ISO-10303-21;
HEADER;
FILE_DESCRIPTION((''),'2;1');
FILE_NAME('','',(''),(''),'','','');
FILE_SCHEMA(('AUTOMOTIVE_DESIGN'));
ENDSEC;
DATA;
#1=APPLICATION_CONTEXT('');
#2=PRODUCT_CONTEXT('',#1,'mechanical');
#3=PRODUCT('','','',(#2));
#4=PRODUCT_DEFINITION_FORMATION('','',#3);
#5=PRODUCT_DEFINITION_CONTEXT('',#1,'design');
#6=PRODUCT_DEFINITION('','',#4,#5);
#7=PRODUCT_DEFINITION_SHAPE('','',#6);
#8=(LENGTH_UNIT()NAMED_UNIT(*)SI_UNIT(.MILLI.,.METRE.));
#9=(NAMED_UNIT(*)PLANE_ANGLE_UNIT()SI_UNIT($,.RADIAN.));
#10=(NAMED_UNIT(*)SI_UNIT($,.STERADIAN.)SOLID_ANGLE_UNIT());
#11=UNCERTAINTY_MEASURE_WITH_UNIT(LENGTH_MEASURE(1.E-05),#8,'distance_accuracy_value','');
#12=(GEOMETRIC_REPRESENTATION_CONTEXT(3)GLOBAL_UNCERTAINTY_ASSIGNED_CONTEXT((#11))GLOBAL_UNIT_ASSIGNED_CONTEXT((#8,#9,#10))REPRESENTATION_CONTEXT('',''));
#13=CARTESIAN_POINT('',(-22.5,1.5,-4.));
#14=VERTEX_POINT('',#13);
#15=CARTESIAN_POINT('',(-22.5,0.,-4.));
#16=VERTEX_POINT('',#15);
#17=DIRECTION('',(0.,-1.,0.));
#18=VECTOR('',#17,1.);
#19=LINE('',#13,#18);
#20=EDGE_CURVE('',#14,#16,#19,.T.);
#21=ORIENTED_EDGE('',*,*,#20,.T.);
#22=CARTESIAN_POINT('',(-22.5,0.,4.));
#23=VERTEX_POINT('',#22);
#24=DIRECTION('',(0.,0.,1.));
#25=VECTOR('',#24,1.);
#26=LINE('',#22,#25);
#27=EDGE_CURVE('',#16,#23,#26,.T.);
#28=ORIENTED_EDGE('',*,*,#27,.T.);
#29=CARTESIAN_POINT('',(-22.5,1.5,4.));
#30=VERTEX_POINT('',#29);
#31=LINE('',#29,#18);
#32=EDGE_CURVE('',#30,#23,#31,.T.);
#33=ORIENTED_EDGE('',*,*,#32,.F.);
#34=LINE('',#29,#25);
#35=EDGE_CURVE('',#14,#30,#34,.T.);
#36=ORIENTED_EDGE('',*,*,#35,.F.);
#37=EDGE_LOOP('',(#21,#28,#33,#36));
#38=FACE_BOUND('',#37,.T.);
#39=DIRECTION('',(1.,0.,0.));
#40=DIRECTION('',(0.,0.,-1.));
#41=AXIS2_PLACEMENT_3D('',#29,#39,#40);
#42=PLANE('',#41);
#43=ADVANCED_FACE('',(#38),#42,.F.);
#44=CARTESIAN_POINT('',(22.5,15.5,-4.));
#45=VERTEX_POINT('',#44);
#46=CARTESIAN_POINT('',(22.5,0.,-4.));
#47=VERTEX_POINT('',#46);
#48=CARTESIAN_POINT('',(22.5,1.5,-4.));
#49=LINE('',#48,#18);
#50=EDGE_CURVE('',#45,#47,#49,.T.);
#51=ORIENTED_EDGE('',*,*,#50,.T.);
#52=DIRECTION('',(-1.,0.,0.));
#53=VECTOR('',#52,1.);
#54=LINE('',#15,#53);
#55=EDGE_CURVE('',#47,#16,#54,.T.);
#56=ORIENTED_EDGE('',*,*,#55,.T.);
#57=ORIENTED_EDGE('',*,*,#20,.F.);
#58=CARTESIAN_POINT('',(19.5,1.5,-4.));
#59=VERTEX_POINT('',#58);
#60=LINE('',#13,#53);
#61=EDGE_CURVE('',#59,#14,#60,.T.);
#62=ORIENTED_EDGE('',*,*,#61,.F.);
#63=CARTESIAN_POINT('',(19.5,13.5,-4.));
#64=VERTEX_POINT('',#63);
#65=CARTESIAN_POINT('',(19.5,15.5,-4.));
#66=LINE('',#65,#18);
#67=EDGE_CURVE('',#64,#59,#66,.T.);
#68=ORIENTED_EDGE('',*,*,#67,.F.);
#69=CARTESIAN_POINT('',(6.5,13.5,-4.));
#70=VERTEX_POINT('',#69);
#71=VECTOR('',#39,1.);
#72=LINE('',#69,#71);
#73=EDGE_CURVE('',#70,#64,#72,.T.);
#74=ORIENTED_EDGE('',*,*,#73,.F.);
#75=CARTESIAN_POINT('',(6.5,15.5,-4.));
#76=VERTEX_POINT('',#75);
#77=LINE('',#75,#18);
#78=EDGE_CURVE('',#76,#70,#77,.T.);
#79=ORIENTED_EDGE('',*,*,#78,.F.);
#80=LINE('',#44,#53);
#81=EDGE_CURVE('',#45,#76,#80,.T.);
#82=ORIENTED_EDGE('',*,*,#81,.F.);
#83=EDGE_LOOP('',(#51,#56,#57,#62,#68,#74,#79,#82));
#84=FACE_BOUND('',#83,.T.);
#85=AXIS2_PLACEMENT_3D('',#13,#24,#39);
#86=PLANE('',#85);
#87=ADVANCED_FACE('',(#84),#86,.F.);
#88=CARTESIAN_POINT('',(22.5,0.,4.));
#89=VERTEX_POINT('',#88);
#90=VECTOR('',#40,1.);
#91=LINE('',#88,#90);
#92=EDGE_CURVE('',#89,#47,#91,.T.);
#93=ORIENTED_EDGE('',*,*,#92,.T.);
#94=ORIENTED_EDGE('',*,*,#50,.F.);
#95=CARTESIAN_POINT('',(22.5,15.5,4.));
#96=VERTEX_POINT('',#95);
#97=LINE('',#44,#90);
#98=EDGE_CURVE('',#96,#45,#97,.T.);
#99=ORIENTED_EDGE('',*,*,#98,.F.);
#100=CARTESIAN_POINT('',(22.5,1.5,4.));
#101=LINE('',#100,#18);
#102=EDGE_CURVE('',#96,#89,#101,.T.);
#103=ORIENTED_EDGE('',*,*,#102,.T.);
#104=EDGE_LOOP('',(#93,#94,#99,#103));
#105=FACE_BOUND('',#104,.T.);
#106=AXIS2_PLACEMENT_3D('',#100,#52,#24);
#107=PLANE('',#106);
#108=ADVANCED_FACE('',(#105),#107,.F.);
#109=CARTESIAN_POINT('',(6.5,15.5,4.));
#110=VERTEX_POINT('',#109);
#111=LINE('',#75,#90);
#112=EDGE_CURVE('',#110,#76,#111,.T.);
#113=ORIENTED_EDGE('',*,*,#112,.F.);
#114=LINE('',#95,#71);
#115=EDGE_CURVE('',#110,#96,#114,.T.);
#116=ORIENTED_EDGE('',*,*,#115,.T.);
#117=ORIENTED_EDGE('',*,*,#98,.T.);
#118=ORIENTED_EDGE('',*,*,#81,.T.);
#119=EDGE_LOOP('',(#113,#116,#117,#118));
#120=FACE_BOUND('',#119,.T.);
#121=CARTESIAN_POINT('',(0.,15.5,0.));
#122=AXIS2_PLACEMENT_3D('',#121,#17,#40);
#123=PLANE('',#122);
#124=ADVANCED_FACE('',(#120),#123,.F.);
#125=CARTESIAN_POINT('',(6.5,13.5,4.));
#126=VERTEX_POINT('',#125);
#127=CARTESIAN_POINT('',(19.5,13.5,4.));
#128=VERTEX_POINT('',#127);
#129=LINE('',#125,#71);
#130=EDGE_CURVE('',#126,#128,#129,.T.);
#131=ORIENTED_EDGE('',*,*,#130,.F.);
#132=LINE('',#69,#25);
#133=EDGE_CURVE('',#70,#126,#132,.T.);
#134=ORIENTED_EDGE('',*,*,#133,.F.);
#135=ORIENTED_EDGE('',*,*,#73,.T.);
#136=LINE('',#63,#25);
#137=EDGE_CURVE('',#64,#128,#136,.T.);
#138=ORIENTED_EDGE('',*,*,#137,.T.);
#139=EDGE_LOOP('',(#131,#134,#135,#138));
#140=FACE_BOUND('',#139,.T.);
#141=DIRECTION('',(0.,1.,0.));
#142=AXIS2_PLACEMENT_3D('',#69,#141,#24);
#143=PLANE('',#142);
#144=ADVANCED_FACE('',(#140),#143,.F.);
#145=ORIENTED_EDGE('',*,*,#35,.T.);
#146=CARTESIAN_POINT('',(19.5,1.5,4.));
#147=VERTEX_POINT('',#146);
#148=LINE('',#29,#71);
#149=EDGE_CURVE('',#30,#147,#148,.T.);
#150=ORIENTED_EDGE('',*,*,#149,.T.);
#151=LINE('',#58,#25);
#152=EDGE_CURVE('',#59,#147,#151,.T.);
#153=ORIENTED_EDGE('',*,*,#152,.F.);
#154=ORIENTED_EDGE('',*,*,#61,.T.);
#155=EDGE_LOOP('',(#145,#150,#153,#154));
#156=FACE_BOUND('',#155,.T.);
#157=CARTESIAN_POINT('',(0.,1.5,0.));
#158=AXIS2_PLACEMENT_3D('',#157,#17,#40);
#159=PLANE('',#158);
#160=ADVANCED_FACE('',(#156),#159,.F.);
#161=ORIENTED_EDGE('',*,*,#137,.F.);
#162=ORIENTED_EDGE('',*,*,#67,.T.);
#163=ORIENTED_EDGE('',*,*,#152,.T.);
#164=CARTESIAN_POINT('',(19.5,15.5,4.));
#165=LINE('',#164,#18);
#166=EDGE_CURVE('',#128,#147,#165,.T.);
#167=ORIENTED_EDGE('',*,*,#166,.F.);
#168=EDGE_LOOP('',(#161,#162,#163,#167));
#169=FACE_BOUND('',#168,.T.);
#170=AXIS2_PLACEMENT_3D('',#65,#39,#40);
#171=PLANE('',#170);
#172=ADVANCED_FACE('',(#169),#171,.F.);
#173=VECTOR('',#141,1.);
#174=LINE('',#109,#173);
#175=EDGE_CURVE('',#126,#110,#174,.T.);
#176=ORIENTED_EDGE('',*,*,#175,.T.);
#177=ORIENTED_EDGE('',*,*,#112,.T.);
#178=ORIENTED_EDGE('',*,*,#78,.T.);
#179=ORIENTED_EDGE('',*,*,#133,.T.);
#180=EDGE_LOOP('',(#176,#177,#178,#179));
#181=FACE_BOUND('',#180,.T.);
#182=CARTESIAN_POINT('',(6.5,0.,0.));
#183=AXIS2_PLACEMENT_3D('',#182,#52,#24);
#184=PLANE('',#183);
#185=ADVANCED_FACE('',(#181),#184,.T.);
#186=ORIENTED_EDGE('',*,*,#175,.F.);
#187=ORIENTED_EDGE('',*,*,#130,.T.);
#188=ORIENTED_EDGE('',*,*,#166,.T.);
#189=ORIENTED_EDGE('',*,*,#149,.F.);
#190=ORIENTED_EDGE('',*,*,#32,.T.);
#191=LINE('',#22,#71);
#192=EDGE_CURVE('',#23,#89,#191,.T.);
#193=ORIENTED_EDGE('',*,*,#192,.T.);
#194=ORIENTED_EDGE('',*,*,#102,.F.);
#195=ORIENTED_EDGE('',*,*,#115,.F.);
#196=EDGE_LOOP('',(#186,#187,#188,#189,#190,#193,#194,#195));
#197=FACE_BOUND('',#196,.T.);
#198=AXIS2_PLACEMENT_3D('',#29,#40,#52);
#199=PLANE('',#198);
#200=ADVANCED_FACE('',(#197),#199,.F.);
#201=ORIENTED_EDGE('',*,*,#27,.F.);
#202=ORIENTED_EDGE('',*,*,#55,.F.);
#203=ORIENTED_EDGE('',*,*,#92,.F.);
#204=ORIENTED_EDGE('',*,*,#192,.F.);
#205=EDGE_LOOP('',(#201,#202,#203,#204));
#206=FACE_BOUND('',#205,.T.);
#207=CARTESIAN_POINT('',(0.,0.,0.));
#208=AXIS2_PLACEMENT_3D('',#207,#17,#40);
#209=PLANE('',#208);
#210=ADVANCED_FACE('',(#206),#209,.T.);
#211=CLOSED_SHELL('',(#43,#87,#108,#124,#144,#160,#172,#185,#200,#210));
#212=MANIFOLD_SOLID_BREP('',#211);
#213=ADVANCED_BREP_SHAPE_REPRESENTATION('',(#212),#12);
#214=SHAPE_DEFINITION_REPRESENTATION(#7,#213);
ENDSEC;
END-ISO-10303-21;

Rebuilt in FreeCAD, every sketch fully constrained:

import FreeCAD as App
import Part
import Sketcher

doc = App.newDocument("Part")
body = doc.addObject("PartDesign::Body", "Body")

# Sketch on XZ plane
sketch1 = doc.addObject("Sketcher::SketchObject", "Sketch")
body.addObject(sketch1)
sketch1.AttachmentSupport = (doc.XZ_Plane, [""])
sketch1.MapMode = "FlatFace"
sketch1.addGeometry([
    Part.LineSegment(App.Vector(-22, -4, 0), App.Vector(-22, 4, 0)),
    Part.LineSegment(App.Vector(-22, 4, 0), App.Vector(22, 4, 0)),
    Part.LineSegment(App.Vector(22, 4, 0), App.Vector(22, -4, 0)),
    Part.LineSegment(App.Vector(22, -4, 0), App.Vector(-22, -4, 0)),
], False)
sketch1.addConstraint([
    Sketcher.Constraint("Coincident", 0, 2, 1, 1),
    Sketcher.Constraint("Coincident", 1, 2, 2, 1),
    Sketcher.Constraint("Coincident", 2, 2, 3, 1),
    Sketcher.Constraint("Coincident", 3, 2, 0, 1),
    Sketcher.Constraint("Vertical", 0),
    Sketcher.Constraint("Horizontal", 1),
    Sketcher.Constraint("Vertical", 2),
    Sketcher.Constraint("Horizontal", 3),
    Sketcher.Constraint("Symmetric", 0, 2, 2, 2, -1, 1),
    Sketcher.Constraint("DistanceX", 1, 1, 1, 2, 45.0),
    Sketcher.Constraint("DistanceY", 0, 1, 0, 2, 8.0),
])
pad1 = doc.addObject("PartDesign::Pad", "Pad")
body.addObject(pad1)
pad1.Profile = sketch1
pad1.Length = 1.5
pad1.Reversed = True

# Sketch on XZ plane
sketch2 = doc.addObject("Sketcher::SketchObject", "Sketch001")
body.addObject(sketch2)
sketch2.AttachmentSupport = (doc.XZ_Plane, [""])
sketch2.MapMode = "FlatFace"
sketch2.AttachmentOffset = App.Placement(App.Vector(0, 0, -1.5), App.Rotation())
sketch2.addGeometry([
    Part.LineSegment(App.Vector(19.5, -4, 0), App.Vector(19.5, 4, 0)),
    Part.LineSegment(App.Vector(19.5, 4, 0), App.Vector(22.5, 4, 0)),
    Part.LineSegment(App.Vector(22.5, 4, 0), App.Vector(22.5, -4, 0)),
    Part.LineSegment(App.Vector(22.5, -4, 0), App.Vector(19.5, -4, 0)),
], False)
sketch2.addConstraint([
    Sketcher.Constraint("Coincident", 0, 2, 1, 1),
    Sketcher.Constraint("Coincident", 1, 2, 2, 1),
    Sketcher.Constraint("Coincident", 2, 2, 3, 1),
    Sketcher.Constraint("Coincident", 3, 2, 0, 1),
    Sketcher.Constraint("Vertical", 0),
    Sketcher.Constraint("Horizontal", 1),
    Sketcher.Constraint("Vertical", 2),
    Sketcher.Constraint("Horizontal", 3),
    Sketcher.Constraint("DistanceX", 1, 1, 1, 2, 3.0),
    Sketcher.Constraint("DistanceY", 0, 1, 0, 2, 8.0),
    Sketcher.Constraint("DistanceY", -1, 1, 0, 2, 4.0),
    Sketcher.Constraint("DistanceX", -1, 1, 0, 2, 19.5),
])
pad2 = doc.addObject("PartDesign::Pad", "Pad001")
body.addObject(pad2)
pad2.Profile = sketch2
pad2.Length = 14
pad2.Reversed = True

# Sketch on YZ plane
sketch3 = doc.addObject("Sketcher::SketchObject", "Sketch002")
body.addObject(sketch3)
sketch3.AttachmentSupport = (doc.YZ_Plane, [""])
sketch3.MapMode = "FlatFace"
sketch3.AttachmentOffset = App.Placement(App.Vector(0, 0, 19.5), App.Rotation())
sketch3.addGeometry([
    Part.LineSegment(App.Vector(15.5, -4, 0), App.Vector(13.5, -4, 0)),
    Part.LineSegment(App.Vector(13.5, -4, 0), App.Vector(13.5, 4, 0)),
    Part.LineSegment(App.Vector(13.5, 4, 0), App.Vector(15.5, 4, 0)),
    Part.LineSegment(App.Vector(15.5, 4, 0), App.Vector(15.5, -4, 0)),
], False)
sketch3.addConstraint([
    Sketcher.Constraint("Coincident", 0, 2, 1, 1),
    Sketcher.Constraint("Coincident", 1, 2, 2, 1),
    Sketcher.Constraint("Coincident", 2, 2, 3, 1),
    Sketcher.Constraint("Coincident", 3, 2, 0, 1),
    Sketcher.Constraint("Horizontal", 0),
    Sketcher.Constraint("Vertical", 1),
    Sketcher.Constraint("Horizontal", 2),
    Sketcher.Constraint("Vertical", 3),
    Sketcher.Constraint("DistanceX", 0, 2, 0, 1, 2.0),
    Sketcher.Constraint("DistanceY", 1, 1, 1, 2, 8.0),
    Sketcher.Constraint("DistanceY", 0, 2, -1, 1, 4.0),
    Sketcher.Constraint("DistanceX", -1, 1, 0, 2, 13.5),
])
pad3 = doc.addObject("PartDesign::Pad", "Pad002")
body.addObject(pad3)
pad3.Profile = sketch3
pad3.Length = 13
pad3.Reversed = True

doc.recompute()
